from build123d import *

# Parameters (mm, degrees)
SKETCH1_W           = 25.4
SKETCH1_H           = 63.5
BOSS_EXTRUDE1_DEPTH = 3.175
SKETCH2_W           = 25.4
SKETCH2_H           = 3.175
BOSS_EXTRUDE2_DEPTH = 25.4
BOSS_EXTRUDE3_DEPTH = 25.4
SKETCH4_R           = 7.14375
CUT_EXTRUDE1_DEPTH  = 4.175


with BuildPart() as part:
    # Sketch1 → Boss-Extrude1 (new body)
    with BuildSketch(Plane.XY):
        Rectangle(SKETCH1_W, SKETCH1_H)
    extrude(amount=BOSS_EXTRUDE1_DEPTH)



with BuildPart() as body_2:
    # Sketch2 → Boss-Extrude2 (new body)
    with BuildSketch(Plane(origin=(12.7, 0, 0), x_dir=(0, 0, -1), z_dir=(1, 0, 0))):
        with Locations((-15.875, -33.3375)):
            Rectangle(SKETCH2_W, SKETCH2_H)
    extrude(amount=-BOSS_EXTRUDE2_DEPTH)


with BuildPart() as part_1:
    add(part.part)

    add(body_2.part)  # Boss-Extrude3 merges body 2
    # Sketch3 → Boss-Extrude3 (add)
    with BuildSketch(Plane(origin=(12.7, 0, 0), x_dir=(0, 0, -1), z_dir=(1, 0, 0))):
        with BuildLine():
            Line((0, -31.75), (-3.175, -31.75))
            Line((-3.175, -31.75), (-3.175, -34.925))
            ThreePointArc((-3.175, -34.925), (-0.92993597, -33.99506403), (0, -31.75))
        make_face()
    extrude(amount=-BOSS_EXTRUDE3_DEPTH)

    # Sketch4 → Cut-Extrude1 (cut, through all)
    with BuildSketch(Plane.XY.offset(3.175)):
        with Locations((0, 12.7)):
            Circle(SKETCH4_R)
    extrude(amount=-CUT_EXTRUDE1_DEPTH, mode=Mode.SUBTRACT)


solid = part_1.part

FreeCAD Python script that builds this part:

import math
import FreeCAD as App
import Part
import Sketcher
from FreeCAD import Vector
Q = App.Units.Quantity


def add_polygon(sketch, points):
    """Adds a closed chain of lines whose ends are joined by coincident constraints."""
    first, n = sketch.GeometryCount, len(points)
    for a, b in zip(points, points[1:] + points[:1]):
        sketch.addGeometry(Part.LineSegment(App.Vector(*a, 0), App.Vector(*b, 0)), False)
    for i in range(n):
        sketch.addConstraint(Sketcher.Constraint("Coincident", first + i, 2, first + (i + 1) % n, 1))

doc = App.newDocument("Part")
body = doc.addObject("PartDesign::Body", "Body")

sketch1 = doc.addObject("Sketcher::SketchObject", "Sketch")
body.addObject(sketch1)
sketch1.AttachmentSupport = (doc.XY_Plane, [""])
sketch1.MapMode = "FlatFace"
add_polygon(sketch1, [(-12.7, 31.75), (-12.7, -31.75), (12.7, -31.75), (12.7, 31.75)])
sketch1.addConstraint([
    Sketcher.Constraint("Vertical", 0),
    Sketcher.Constraint("Horizontal", 1),
    Sketcher.Constraint("Vertical", 2),
    Sketcher.Constraint("Horizontal", 3),
    Sketcher.Constraint("Symmetric", 0, 2, 2, 2, -1, 1),
    Sketcher.Constraint("DistanceX", 1, 1, 1, 2, Q("1 in")),
    Sketcher.Constraint("DistanceY", 0, 2, 0, 1, Q("2.5 in")),
])
pad1 = doc.addObject("PartDesign::Pad", "Pad")
body.addObject(pad1)
pad1.Profile = sketch1
pad1.Length = Q("0.125 in")
body2 = doc.addObject("PartDesign::Body", "Body001")

sketch2 = doc.addObject("Sketcher::SketchObject", "Sketch001")
body2.addObject(sketch2)
sketch2.AttachmentSupport = (doc.getObject("YZ_Plane001"), [""])
sketch2.MapMode = "FlatFace"
sketch2.AttachmentOffset = App.Placement(Vector(0, 0, 0.5 * 25.4), App.Rotation())
add_polygon(sketch2, [(-31.75, 28.575), (-34.925, 28.575), (-34.925, 3.175), (-31.75, 3.175)])
sketch2.addConstraint([
    Sketcher.Constraint("Horizontal", 0),
    Sketcher.Constraint("Vertical", 1),
    Sketcher.Constraint("Horizontal", 2),
    Sketcher.Constraint("Vertical", 3),
    Sketcher.Constraint("DistanceY", 1, 2, 1, 1, Q("1 in")),
    Sketcher.Constraint("DistanceX", 0, 2, 0, 1, Q("0.125 in")),
    Sketcher.Constraint("DistanceX", 2, 2, -1, 1, Q("1.25 in")),
    Sketcher.Constraint("DistanceY", -1, 1, 0, 2, Q("1.125 in")),
])
pad2 = doc.addObject("PartDesign::Pad", "Pad001")
body2.addObject(pad2)
pad2.Profile = sketch2
pad2.Length = Q("1 in")
pad2.Reversed = True
body.AllowCompound = True
doc.recompute()

boolean = doc.addObject("PartDesign::Boolean", "Boolean")
body.addObject(boolean)
boolean.Type = "Fuse"
boolean.addObjects([body2])

sketch3 = doc.addObject("Sketcher::SketchObject", "Sketch002")
body.addObject(sketch3)
sketch3.AttachmentSupport = (doc.YZ_Plane, [""])
sketch3.MapMode = "FlatFace"
sketch3.AttachmentOffset = App.Placement(Vector(0, 0, 0.5 * 25.4), App.Rotation())
sketch3.addGeometry([
    Part.LineSegment(Vector(-31.75, 0, 0), Vector(-31.75, 3.175, 0)),
    Part.LineSegment(Vector(-31.75, 3.175, 0), Vector(-34.925, 3.175, 0)),
    Part.ArcOfCircle(Part.Circle(Vector(-31.75, 3.175, 0), Vector(0, 0, 1), 3.175), math.radians(-180), math.radians(-90)),
], False)
sketch3.addConstraint([
    Sketcher.Constraint("Coincident", 0, 2, 1, 1),
    Sketcher.Constraint("Coincident", 1, 2, 2, 1),
    Sketcher.Constraint("Coincident", 2, 2, 0, 1),
    Sketcher.Constraint("Vertical", 0),
    Sketcher.Constraint("Horizontal", 1),
    Sketcher.Constraint("Coincident", 0, 2, 2, 3),
    Sketcher.Constraint("PointOnObject", 2, 2, -1),
    Sketcher.Constraint("Radius", 2, Q("0.125 in")),
    Sketcher.Constraint("DistanceX", 2, 3, -1, 1, Q("1.25 in")),
])
pad3 = doc.addObject("PartDesign::Pad", "Pad002")
body.addObject(pad3)
pad3.Profile = sketch3
pad3.Length = Q("1 in")
pad3.Reversed = True

sketch4 = doc.addObject("Sketcher::SketchObject", "Sketch003")
body.addObject(sketch4)
sketch4.AttachmentSupport = (doc.XY_Plane, [""])
sketch4.MapMode = "FlatFace"
sketch4.AttachmentOffset = App.Placement(Vector(0, 0, 0.125 * 25.4), App.Rotation())
sketch4.addGeometry(Part.Circle(Vector(0, 12.7, 0), Vector(0, 0, 1), 7.14375), False)
sketch4.addConstraint([
    Sketcher.Constraint("PointOnObject", 0, 3, -2),
    Sketcher.Constraint("Diameter", 0, Q("0.5625 in")),
    Sketcher.Constraint("DistanceY", -1, 1, 0, 3, Q("0.5 in")),
])
pocket1 = doc.addObject("PartDesign::Pocket", "Pocket")
body.addObject(pocket1)
pocket1.Profile = sketch4
pocket1.Type = "ThroughAll"

doc.recompute()
